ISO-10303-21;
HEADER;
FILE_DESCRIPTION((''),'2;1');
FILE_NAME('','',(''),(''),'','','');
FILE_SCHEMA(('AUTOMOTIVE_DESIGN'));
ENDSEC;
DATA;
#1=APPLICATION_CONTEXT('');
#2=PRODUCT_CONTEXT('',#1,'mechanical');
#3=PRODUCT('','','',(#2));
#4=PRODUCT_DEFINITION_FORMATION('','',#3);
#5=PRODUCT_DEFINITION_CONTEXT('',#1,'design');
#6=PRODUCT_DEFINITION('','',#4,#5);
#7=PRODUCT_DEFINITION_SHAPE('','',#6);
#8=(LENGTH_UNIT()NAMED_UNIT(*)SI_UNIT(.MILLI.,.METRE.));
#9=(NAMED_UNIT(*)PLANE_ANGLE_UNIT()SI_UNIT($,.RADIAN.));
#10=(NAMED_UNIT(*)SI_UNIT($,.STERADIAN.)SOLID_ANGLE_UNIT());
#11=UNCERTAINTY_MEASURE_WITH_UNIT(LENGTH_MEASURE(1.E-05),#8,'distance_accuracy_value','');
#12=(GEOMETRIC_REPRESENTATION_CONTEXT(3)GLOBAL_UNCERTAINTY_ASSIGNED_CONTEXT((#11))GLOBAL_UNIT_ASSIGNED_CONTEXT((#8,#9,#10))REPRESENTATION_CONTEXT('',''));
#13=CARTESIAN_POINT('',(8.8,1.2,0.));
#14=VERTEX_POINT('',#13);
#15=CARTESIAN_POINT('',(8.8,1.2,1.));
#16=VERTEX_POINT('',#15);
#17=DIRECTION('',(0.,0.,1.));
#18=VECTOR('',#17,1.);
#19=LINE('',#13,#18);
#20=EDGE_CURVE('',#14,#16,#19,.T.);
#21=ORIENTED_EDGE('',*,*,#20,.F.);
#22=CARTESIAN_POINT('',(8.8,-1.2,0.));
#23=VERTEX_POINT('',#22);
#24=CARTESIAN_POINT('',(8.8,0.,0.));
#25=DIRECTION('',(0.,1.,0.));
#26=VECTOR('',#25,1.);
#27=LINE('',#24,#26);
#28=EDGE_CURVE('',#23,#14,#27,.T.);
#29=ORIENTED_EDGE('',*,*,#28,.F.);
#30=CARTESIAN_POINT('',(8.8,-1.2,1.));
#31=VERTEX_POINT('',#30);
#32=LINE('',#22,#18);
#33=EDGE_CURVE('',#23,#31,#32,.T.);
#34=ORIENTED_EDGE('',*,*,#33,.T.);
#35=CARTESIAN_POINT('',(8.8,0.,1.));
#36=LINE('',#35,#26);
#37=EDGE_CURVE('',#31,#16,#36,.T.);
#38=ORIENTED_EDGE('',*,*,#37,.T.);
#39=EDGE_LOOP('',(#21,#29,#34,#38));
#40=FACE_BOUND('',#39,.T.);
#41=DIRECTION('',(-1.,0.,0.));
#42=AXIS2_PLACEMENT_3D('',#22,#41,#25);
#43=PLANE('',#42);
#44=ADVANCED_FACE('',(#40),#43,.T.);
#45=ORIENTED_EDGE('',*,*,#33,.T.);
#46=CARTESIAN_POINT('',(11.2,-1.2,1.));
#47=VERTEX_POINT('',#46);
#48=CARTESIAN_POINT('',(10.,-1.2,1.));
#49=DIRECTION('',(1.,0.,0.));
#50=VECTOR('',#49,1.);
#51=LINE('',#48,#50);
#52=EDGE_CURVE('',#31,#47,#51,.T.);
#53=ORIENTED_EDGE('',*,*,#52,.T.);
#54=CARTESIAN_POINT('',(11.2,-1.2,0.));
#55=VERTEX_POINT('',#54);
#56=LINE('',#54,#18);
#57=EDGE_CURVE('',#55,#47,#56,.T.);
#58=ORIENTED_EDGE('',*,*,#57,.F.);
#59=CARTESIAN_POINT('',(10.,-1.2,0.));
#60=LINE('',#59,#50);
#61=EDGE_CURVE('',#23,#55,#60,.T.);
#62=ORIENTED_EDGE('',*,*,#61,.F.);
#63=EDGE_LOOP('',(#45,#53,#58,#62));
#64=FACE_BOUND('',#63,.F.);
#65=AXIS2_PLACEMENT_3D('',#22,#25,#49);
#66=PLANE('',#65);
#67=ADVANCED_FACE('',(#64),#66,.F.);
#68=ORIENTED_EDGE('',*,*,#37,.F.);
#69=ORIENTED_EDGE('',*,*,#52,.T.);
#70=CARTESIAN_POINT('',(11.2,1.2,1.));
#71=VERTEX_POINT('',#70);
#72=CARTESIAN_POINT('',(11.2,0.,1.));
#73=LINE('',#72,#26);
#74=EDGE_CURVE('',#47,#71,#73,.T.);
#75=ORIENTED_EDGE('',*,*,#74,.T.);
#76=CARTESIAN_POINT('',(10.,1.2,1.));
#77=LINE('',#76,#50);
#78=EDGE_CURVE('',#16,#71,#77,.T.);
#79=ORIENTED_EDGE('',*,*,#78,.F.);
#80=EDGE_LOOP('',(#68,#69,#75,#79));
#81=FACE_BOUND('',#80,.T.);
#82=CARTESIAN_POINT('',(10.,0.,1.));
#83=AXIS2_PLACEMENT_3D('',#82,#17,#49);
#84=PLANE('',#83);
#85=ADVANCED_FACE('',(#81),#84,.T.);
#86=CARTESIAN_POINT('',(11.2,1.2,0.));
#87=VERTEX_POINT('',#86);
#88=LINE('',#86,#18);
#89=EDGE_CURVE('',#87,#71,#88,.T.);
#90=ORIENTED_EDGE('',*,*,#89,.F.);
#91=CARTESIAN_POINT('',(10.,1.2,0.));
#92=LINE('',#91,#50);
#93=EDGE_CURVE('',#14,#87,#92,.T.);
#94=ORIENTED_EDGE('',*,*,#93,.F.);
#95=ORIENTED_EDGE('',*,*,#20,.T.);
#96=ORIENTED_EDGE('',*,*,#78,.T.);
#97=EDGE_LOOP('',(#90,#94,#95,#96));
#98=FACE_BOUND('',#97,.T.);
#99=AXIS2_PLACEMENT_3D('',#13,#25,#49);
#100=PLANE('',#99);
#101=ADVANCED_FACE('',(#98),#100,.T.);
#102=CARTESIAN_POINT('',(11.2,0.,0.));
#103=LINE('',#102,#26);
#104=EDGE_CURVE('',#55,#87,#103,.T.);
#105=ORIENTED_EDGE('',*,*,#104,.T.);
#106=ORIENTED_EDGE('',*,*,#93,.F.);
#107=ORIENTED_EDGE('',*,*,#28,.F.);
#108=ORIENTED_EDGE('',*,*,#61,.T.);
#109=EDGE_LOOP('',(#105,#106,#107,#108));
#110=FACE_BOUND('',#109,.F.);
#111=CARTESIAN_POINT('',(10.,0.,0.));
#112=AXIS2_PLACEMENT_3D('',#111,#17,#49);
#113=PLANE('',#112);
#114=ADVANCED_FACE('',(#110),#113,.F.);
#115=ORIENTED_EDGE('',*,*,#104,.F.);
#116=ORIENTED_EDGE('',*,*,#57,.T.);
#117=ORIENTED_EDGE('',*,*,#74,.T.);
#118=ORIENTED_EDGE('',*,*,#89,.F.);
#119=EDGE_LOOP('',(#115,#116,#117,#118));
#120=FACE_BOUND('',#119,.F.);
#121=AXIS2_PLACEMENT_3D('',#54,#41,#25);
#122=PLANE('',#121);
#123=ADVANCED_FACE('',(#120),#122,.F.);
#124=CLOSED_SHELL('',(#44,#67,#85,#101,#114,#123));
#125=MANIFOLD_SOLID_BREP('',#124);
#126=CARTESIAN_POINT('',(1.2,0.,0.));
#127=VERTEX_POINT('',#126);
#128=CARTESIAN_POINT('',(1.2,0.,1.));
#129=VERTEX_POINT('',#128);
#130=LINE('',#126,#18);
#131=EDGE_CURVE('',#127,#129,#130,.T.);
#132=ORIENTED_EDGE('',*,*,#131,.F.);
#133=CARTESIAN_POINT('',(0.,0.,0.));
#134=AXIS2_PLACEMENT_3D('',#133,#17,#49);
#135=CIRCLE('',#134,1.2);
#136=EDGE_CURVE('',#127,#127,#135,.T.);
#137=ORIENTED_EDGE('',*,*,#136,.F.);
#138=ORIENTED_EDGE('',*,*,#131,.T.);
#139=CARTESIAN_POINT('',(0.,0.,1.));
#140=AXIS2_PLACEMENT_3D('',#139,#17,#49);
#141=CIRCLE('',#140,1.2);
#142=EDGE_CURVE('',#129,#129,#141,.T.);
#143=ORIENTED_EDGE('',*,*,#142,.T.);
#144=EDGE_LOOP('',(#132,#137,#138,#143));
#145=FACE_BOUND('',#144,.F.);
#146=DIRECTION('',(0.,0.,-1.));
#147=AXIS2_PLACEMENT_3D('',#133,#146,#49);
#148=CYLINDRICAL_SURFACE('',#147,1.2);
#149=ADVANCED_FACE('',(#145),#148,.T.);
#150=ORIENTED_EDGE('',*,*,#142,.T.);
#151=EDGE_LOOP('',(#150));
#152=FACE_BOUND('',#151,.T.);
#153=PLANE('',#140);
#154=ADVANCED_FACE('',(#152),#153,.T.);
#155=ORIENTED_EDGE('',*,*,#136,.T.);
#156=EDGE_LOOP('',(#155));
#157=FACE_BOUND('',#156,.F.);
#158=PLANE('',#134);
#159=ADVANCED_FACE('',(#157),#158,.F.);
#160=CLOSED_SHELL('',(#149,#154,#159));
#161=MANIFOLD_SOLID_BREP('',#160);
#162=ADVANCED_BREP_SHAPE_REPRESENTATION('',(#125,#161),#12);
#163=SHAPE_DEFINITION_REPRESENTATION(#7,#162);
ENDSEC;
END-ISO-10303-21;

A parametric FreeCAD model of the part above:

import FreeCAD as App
import Part
import Sketcher

V = App.Vector

doc = App.newDocument("Part")
body = doc.addObject("PartDesign::Body", "Body")
body.AllowCompound = True

sketch1 = doc.addObject("Sketcher::SketchObject", "Sketch")
body.addObject(sketch1)
sketch1.AttachmentSupport = (doc.XY_Plane, [""])
sketch1.MapMode = "FlatFace"
sketch1.addGeometry(Part.Circle(V(0, 0, 0), V(0, 0, 1), 1.2), False)
sketch1.addGeometry(Part.LineSegment(V(8.8, 1.2, 0), V(8.8, -1.2, 0)), False)
sketch1.addGeometry(Part.LineSegment(V(8.8, -1.2, 0), V(11.2, -1.2, 0)), False)
sketch1.addGeometry(Part.LineSegment(V(11.2, -1.2, 0), V(11.2, 1.2, 0)), False)
sketch1.addGeometry(Part.LineSegment(V(11.2, 1.2, 0), V(8.8, 1.2, 0)), False)
sketch1.addConstraint(Sketcher.Constraint("Coincident", 1, 2, 2, 1))
sketch1.addConstraint(Sketcher.Constraint("Coincident", 2, 2, 3, 1))
sketch1.addConstraint(Sketcher.Constraint("Coincident", 3, 2, 4, 1))
sketch1.addConstraint(Sketcher.Constraint("Coincident", 4, 2, 1, 1))
sketch1.addConstraint(Sketcher.Constraint("Vertical", 1))
sketch1.addConstraint(Sketcher.Constraint("Horizontal", 2))
sketch1.addConstraint(Sketcher.Constraint("Vertical", 3))
sketch1.addConstraint(Sketcher.Constraint("Horizontal", 4))
sketch1.addConstraint(Sketcher.Constraint("Coincident", 0, 3, -1, 1))
sketch1.addConstraint(Sketcher.Constraint("Equal", 4, 1))
sketch1.addConstraint(Sketcher.Constraint("Diameter", 0, 2.4))
sketch1.addConstraint(Sketcher.Constraint("DistanceX", 2, 1, 2, 2, 2.4))
sketch1.addConstraint(Sketcher.Constraint("DistanceX", -1, 1, 1, 2, 8.8))
sketch1.addConstraint(Sketcher.Constraint("DistanceY", 1, 2, -1, 1, 1.2))
pad1 = doc.addObject("PartDesign::Pad", "Pad")
body.addObject(pad1)
pad1.Profile = sketch1
pad1.Length = 1

doc.recompute()
